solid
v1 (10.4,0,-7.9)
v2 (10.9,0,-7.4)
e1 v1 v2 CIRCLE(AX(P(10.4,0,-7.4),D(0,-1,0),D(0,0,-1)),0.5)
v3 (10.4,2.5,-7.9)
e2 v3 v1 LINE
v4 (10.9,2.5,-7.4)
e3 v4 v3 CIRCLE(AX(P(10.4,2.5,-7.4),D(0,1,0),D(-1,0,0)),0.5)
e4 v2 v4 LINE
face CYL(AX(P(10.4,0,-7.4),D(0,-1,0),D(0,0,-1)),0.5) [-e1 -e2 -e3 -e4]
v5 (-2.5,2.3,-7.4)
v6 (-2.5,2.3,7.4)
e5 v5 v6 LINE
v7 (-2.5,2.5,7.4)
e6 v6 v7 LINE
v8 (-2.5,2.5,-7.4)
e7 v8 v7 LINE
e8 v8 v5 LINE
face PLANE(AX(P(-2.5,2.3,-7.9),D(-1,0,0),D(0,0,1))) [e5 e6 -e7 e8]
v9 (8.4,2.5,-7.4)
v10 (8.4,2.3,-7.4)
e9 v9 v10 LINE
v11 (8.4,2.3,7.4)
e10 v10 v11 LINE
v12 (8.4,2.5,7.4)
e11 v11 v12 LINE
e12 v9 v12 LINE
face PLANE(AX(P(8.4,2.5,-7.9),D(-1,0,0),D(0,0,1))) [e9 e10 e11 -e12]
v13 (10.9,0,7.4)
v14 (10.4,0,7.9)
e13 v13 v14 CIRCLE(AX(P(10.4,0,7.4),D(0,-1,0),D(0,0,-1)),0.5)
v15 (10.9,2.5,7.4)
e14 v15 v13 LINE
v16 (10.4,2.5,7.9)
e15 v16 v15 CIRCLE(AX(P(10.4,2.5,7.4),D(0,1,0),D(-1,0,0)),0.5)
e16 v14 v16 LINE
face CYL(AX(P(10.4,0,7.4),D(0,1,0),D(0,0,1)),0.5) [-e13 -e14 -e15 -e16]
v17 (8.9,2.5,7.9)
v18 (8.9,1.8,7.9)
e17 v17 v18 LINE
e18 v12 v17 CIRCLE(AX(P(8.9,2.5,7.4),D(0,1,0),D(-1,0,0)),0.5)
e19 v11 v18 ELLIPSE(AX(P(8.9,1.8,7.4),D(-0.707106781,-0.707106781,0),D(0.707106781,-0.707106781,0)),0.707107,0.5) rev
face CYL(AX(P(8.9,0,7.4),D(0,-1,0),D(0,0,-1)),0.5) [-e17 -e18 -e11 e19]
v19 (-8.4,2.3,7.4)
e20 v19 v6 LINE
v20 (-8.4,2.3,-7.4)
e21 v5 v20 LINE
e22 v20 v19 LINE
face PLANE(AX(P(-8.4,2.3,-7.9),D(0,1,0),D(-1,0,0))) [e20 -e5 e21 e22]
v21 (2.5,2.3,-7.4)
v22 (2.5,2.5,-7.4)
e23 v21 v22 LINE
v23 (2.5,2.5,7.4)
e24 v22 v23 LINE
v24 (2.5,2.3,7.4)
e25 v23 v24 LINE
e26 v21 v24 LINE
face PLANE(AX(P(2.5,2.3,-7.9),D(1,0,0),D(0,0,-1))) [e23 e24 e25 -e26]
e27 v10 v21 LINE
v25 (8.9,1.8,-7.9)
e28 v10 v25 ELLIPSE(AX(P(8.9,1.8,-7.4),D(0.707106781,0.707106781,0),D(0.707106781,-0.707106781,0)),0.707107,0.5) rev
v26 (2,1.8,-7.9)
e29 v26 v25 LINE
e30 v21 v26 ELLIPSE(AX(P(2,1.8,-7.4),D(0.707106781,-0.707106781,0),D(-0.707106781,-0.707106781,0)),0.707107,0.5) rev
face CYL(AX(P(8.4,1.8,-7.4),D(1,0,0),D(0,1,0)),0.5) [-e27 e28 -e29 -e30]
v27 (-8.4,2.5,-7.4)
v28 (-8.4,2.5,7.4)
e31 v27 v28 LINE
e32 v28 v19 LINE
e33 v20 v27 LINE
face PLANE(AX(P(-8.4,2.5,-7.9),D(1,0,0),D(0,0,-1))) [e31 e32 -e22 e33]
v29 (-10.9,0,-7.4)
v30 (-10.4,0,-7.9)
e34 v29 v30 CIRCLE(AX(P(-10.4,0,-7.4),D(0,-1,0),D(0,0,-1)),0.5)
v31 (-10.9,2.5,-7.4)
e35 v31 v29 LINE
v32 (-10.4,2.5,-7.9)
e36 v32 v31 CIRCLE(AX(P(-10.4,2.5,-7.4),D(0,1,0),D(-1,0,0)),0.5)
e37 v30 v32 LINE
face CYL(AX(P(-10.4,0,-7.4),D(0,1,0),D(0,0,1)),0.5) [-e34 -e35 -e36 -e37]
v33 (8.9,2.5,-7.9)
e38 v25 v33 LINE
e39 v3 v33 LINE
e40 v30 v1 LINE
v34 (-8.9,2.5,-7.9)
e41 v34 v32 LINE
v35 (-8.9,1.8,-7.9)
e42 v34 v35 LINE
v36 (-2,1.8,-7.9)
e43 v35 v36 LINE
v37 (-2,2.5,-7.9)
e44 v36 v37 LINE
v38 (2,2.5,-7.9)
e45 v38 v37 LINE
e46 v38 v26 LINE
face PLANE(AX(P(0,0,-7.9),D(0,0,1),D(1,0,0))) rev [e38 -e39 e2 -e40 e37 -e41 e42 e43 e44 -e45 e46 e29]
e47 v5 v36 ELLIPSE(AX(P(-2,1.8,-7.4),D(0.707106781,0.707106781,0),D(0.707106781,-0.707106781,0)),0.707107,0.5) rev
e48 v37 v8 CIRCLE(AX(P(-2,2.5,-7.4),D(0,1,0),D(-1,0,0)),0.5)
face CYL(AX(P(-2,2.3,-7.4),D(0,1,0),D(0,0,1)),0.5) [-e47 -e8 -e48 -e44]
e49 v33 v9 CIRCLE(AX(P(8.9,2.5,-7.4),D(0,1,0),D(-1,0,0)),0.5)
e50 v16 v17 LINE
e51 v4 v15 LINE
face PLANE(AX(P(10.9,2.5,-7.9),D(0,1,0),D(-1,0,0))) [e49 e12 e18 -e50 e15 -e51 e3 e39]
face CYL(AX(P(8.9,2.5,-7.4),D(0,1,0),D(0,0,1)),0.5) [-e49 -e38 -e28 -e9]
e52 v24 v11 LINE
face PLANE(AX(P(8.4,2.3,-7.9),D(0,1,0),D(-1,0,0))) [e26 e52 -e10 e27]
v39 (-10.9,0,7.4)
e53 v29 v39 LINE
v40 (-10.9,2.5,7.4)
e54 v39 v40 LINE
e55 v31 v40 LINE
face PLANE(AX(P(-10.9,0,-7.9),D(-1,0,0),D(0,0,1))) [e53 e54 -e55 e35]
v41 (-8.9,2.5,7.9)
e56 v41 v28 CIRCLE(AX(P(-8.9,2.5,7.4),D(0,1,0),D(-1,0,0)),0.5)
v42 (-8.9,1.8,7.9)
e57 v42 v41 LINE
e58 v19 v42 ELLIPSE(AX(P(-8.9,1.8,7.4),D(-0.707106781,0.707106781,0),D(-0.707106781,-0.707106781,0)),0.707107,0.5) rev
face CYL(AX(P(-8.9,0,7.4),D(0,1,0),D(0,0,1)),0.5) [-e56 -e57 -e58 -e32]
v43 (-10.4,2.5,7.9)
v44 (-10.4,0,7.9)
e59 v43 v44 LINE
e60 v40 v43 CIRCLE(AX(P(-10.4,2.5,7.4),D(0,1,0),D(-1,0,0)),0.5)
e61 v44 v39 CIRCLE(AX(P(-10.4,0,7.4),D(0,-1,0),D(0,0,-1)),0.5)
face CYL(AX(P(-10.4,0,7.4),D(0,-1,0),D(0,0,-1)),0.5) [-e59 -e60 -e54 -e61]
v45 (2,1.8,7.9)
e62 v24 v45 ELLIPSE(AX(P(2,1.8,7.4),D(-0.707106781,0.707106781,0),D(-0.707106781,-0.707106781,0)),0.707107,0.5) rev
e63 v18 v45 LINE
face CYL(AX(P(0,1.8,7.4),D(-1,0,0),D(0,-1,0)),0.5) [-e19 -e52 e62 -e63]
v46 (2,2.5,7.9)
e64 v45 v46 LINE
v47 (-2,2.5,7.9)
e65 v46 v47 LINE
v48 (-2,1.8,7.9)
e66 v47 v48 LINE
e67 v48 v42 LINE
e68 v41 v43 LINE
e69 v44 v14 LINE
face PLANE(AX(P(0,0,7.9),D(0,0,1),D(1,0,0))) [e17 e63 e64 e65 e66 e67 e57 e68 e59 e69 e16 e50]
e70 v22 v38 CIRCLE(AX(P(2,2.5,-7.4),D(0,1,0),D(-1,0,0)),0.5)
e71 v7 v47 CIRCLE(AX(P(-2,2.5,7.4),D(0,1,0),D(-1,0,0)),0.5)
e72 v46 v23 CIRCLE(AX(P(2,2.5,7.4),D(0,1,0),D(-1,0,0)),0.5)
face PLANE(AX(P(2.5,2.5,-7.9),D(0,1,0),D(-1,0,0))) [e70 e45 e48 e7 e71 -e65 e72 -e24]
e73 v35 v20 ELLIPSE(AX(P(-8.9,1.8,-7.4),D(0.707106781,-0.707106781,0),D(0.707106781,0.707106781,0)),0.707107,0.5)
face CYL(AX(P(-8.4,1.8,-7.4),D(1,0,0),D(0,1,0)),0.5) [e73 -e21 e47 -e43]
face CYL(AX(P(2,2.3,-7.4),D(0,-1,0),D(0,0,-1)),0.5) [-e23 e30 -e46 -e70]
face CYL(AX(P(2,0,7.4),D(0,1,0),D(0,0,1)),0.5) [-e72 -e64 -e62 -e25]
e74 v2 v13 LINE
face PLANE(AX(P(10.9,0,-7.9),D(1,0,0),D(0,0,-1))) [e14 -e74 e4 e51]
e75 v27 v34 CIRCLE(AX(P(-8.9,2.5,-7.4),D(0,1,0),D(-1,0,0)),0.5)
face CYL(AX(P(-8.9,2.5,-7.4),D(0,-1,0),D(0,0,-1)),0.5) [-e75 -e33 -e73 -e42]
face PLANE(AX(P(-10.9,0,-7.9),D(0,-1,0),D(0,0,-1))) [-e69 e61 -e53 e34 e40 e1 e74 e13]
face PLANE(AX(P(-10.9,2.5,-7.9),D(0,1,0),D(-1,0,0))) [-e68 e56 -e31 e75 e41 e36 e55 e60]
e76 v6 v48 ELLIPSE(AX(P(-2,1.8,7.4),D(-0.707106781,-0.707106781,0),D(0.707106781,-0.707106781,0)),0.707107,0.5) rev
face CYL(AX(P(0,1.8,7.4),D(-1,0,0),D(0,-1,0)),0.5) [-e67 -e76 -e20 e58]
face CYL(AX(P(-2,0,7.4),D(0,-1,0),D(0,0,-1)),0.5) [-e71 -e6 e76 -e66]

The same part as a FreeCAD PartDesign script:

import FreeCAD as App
import Part
import Sketcher

V = App.Vector


def edges_at(feature, points):
    """Names of the edges that pass closest to the given points."""
    edges = feature.Shape.Edges
    near = lambda p: min(range(len(edges)), key=lambda i: edges[i].distToShape(Part.Vertex(*p))[0])
    return sorted({f"Edge{near(p) + 1}" for p in points})


def add_polygon(sketch, points):
    """Adds a closed chain of lines whose ends are joined by coincident constraints."""
    first, n = sketch.GeometryCount, len(points)
    for a, b in zip(points, points[1:] + points[:1]):
        sketch.addGeometry(Part.LineSegment(App.Vector(*a, 0), App.Vector(*b, 0)), False)
    for i in range(n):
        sketch.addConstraint(Sketcher.Constraint("Coincident", first + i, 2, first + (i + 1) % n, 1))

doc = App.newDocument("Part")
body = doc.addObject("PartDesign::Body", "Body")

sketch1 = body.newObject("Sketcher::SketchObject", "Sketch")
sketch1.AttachmentSupport = (doc.getObject("XY_Plane"), [""])
sketch1.MapMode = "FlatFace"
add_polygon(sketch1, [(-10.9, 0), (10.9, 0), (10.9, 2.5), (8.4, 2.5), (8.4, 2.3), (2.5, 2.3), (2.5, 2.5), (-2.5, 2.5), (-2.5, 2.3), (-8.4, 2.3), (-8.4, 2.5), (-10.9, 2.5)])
sketch1.addConstraint(Sketcher.Constraint("Horizontal", 0))
sketch1.addConstraint(Sketcher.Constraint("Vertical", 1))
sketch1.addConstraint(Sketcher.Constraint("Horizontal", 2))
sketch1.addConstraint(Sketcher.Constraint("Vertical", 3))
sketch1.addConstraint(Sketcher.Constraint("Horizontal", 4))
sketch1.addConstraint(Sketcher.Constraint("Vertical", 5))
sketch1.addConstraint(Sketcher.Constraint("Horizontal", 6))
sketch1.addConstraint(Sketcher.Constraint("Vertical", 7))
sketch1.addConstraint(Sketcher.Constraint("Horizontal", 8))
sketch1.addConstraint(Sketcher.Constraint("Vertical", 9))
sketch1.addConstraint(Sketcher.Constraint("Horizontal", 10))
sketch1.addConstraint(Sketcher.Constraint("Vertical", 11))
sketch1.addConstraint(Sketcher.Constraint("Symmetric", 0, 2, 11, 2, -1, 1))
sketch1.addConstraint(Sketcher.Constraint("Symmetric", 4, 2, 7, 2, -2))
sketch1.addConstraint(Sketcher.Constraint("Symmetric", 2, 2, 9, 2, -2))
sketch1.addConstraint(Sketcher.Constraint("Horizontal", 2, 2, 5, 2))
sketch1.addConstraint(Sketcher.Constraint("Equal", 10, 1))
sketch1.addConstraint(Sketcher.Constraint("DistanceX", 6, 2, 6, 1, 5.0))
sketch1.addConstraint(Sketcher.Constraint("DistanceX", 0, 1, 0, 2, 21.8))
sketch1.addConstraint(Sketcher.Constraint("DistanceX", 2, 2, 2, 1, 2.5))
sketch1.addConstraint(Sketcher.Constraint("DistanceY", 3, 2, 3, 1, 0.2))
pad1 = body.newObject("PartDesign::Pad", "Pad")
pad1.Profile = sketch1
pad1.Type = "TwoLengths"
pad1.Length = 7.9
pad1.Length2 = 7.9
doc.recompute()

fillet = body.newObject("PartDesign::Fillet", "Fillet")
fillet.Base = (pad1, edges_at(pad1, [
    (8.4, 2.4, -7.9),
    (5.45, 2.3, -7.9),
    (2.5, 2.4, -7.9),
    (-2.5, 2.4, -7.9),
    (-5.45, 2.3, -7.9),
    (-8.4, 2.4, -7.9),
    (10.9, 1.25, 7.9),
    (8.4, 2.4, 7.9),
    (-10.9, 1.25, -7.9),
    (5.45, 2.3, 7.9),
    (2.5, 2.4, 7.9),
    (-2.5, 2.4, 7.9),
    (-5.45, 2.3, 7.9),
    (-8.4, 2.4, 7.9),
    (-10.9, 1.25, 7.9),
    (10.9, 1.25, -7.9),
]))
fillet.Radius = 0.5

doc.recompute()
